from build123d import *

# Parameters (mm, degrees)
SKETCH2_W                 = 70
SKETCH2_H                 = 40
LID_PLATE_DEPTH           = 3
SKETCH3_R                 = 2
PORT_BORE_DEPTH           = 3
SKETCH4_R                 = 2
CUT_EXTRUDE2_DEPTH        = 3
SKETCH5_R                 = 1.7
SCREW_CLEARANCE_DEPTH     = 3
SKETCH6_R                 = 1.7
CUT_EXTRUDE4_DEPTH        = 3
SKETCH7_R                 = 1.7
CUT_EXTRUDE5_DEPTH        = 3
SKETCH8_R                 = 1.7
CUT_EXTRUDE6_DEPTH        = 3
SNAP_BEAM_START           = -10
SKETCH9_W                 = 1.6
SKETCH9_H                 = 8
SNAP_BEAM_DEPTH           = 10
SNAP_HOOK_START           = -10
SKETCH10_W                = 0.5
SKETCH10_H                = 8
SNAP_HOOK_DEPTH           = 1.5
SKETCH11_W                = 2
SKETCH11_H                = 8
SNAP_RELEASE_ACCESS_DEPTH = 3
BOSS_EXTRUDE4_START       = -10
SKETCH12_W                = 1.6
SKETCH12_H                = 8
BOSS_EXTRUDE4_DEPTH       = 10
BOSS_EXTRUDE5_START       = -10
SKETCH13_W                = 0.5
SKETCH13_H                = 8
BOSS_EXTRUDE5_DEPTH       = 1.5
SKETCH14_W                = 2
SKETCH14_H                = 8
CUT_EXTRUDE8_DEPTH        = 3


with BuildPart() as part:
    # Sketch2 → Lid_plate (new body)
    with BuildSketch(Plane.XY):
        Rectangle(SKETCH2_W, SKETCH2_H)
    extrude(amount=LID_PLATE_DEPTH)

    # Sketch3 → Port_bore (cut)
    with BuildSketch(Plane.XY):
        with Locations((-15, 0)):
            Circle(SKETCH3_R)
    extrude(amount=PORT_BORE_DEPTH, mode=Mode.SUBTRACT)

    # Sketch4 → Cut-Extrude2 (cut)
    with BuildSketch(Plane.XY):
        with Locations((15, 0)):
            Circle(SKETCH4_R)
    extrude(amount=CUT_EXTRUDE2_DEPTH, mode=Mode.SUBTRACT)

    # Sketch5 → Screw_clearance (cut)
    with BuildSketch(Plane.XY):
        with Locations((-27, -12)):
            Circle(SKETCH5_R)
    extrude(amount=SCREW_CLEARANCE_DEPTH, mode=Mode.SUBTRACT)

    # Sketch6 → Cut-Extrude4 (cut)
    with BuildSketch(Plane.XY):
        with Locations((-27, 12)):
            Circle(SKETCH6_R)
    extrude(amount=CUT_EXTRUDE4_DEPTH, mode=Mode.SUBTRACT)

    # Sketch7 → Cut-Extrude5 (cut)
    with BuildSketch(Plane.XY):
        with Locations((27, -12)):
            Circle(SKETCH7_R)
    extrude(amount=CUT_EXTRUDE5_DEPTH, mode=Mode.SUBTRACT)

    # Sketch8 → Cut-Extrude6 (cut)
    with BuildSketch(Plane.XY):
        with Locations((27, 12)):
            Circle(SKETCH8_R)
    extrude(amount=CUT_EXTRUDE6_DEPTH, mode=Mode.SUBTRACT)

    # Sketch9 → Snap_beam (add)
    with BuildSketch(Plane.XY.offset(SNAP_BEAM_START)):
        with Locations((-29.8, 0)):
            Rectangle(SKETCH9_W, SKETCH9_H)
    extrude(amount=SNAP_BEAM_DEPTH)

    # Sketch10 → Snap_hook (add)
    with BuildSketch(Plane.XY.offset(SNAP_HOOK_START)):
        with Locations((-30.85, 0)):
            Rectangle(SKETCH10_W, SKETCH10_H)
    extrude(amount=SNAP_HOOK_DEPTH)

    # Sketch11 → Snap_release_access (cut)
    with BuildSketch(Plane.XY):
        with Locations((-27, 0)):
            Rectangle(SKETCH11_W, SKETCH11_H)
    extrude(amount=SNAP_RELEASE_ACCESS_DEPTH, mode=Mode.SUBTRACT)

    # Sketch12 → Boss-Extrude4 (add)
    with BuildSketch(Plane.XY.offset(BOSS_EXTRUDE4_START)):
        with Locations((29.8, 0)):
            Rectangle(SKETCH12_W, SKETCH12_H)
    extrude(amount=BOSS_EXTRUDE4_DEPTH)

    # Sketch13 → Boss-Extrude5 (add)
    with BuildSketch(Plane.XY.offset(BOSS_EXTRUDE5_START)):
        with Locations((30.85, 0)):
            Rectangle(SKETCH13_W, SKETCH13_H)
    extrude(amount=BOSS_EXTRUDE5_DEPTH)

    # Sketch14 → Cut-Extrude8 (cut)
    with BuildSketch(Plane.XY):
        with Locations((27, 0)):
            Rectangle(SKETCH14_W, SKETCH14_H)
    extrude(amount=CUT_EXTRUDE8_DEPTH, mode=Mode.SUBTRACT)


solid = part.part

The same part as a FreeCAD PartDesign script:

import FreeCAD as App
import Part
import Sketcher
Q = App.Units.Quantity

doc = App.newDocument("Part")
body = doc.addObject("PartDesign::Body", "Body")

# Sketch on XY plane
sketch1 = body.newObject("Sketcher::SketchObject", "Sketch")
sketch1.AttachmentSupport = (doc.getObject("XY_Plane"), [""])
sketch1.MapMode = "FlatFace"
sketch1.addGeometry(Part.LineSegment(App.Vector(-35, 20, 0), App.Vector(-35, -20, 0)), False)
sketch1.addGeometry(Part.LineSegment(App.Vector(-35, -20, 0), App.Vector(35, -20, 0)), False)
sketch1.addGeometry(Part.LineSegment(App.Vector(35, -20, 0), App.Vector(35, 20, 0)), False)
sketch1.addGeometry(Part.LineSegment(App.Vector(35, 20, 0), App.Vector(-35, 20, 0)), False)
sketch1.addConstraint(Sketcher.Constraint("Coincident", 0, 2, 1, 1))
sketch1.addConstraint(Sketcher.Constraint("Coincident", 1, 2, 2, 1))
sketch1.addConstraint(Sketcher.Constraint("Coincident", 2, 2, 3, 1))
sketch1.addConstraint(Sketcher.Constraint("Coincident", 3, 2, 0, 1))
sketch1.addConstraint(Sketcher.Constraint("Vertical", 0))
sketch1.addConstraint(Sketcher.Constraint("Horizontal", 1))
sketch1.addConstraint(Sketcher.Constraint("Vertical", 2))
sketch1.addConstraint(Sketcher.Constraint("Horizontal", 3))
sketch1.addConstraint(Sketcher.Constraint("Symmetric", 0, 2, 2, 2, -1, 1))
sketch1.addConstraint(Sketcher.Constraint("DistanceX", 1, 1, 1, 2, Q("70 mm")))
sketch1.addConstraint(Sketcher.Constraint("DistanceY", 0, 2, 0, 1, Q("40 mm")))
pad1 = body.newObject("PartDesign::Pad", "Pad")
pad1.Profile = sketch1
pad1.Length = 3

# Sketch on XY plane
sketch2 = body.newObject("Sketcher::SketchObject", "Sketch001")
sketch2.AttachmentSupport = (doc.getObject("XY_Plane"), [""])
sketch2.MapMode = "FlatFace"
sketch2.addGeometry(Part.Circle(App.Vector(-15, 0, 0), App.Vector(0, 0, 1), 2), False)
sketch2.addConstraint(Sketcher.Constraint("PointOnObject", 0, 3, -1))
sketch2.addConstraint(Sketcher.Constraint("Diameter", 0, Q("4 mm")))
sketch2.addConstraint(Sketcher.Constraint("DistanceX", 0, 3, -1, 1, Q("15 mm")))
pocket1 = body.newObject("PartDesign::Pocket", "Pocket")
pocket1.Profile = sketch2
pocket1.Length = 3
pocket1.Reversed = True

# Sketch on XY plane
sketch3 = body.newObject("Sketcher::SketchObject", "Sketch002")
sketch3.AttachmentSupport = (doc.getObject("XY_Plane"), [""])
sketch3.MapMode = "FlatFace"
sketch3.addGeometry(Part.Circle(App.Vector(15, 0, 0), App.Vector(0, 0, 1), 2), False)
sketch3.addConstraint(Sketcher.Constraint("PointOnObject", 0, 3, -1))
sketch3.addConstraint(Sketcher.Constraint("Diameter", 0, Q("4 mm")))
sketch3.addConstraint(Sketcher.Constraint("DistanceX", -1, 1, 0, 3, Q("15 mm")))
pocket2 = body.newObject("PartDesign::Pocket", "Pocket001")
pocket2.Profile = sketch3
pocket2.Length = 3
pocket2.Reversed = True

# Sketch on XY plane
sketch4 = body.newObject("Sketcher::SketchObject", "Sketch003")
sketch4.AttachmentSupport = (doc.getObject("XY_Plane"), [""])
sketch4.MapMode = "FlatFace"
sketch4.addGeometry(Part.Circle(App.Vector(-27, -12, 0), App.Vector(0, 0, 1), 1.7), False)
sketch4.addConstraint(Sketcher.Constraint("Diameter", 0, Q("3.4 mm")))
sketch4.addConstraint(Sketcher.Constraint("DistanceX", 0, 3, -1, 1, Q("27 mm")))
sketch4.addConstraint(Sketcher.Constraint("DistanceY", 0, 3, -1, 1, Q("12 mm")))
pocket3 = body.newObject("PartDesign::Pocket", "Pocket002")
pocket3.Profile = sketch4
pocket3.Length = 3
pocket3.Reversed = True

# Sketch on XY plane
sketch5 = body.newObject("Sketcher::SketchObject", "Sketch004")
sketch5.AttachmentSupport = (doc.getObject("XY_Plane"), [""])
sketch5.MapMode = "FlatFace"
sketch5.addGeometry(Part.Circle(App.Vector(-27, 12, 0), App.Vector(0, 0, 1), 1.7), False)
sketch5.addConstraint(Sketcher.Constraint("Diameter", 0, Q("3.4 mm")))
sketch5.addConstraint(Sketcher.Constraint("DistanceX", 0, 3, -1, 1, Q("27 mm")))
sketch5.addConstraint(Sketcher.Constraint("DistanceY", -1, 1, 0, 3, Q("12 mm")))
pocket4 = body.newObject("PartDesign::Pocket", "Pocket003")
pocket4.Profile = sketch5
pocket4.Length = 3
pocket4.Reversed = True

# Sketch on XY plane
sketch6 = body.newObject("Sketcher::SketchObject", "Sketch005")
sketch6.AttachmentSupport = (doc.getObject("XY_Plane"), [""])
sketch6.MapMode = "FlatFace"
sketch6.addGeometry(Part.Circle(App.Vector(27, -12, 0), App.Vector(0, 0, 1), 1.7), False)
sketch6.addConstraint(Sketcher.Constraint("Diameter", 0, Q("3.4 mm")))
sketch6.addConstraint(Sketcher.Constraint("DistanceX", -1, 1, 0, 3, Q("27 mm")))
sketch6.addConstraint(Sketcher.Constraint("DistanceY", 0, 3, -1, 1, Q("12 mm")))
pocket5 = body.newObject("PartDesign::Pocket", "Pocket004")
pocket5.Profile = sketch6
pocket5.Length = 3
pocket5.Reversed = True

# Sketch on XY plane
sketch7 = body.newObject("Sketcher::SketchObject", "Sketch006")
sketch7.AttachmentSupport = (doc.getObject("XY_Plane"), [""])
sketch7.MapMode = "FlatFace"
sketch7.addGeometry(Part.Circle(App.Vector(27, 12, 0), App.Vector(0, 0, 1), 1.7), False)
sketch7.addConstraint(Sketcher.Constraint("Diameter", 0, Q("3.4 mm")))
sketch7.addConstraint(Sketcher.Constraint("DistanceX", -1, 1, 0, 3, Q("27 mm")))
sketch7.addConstraint(Sketcher.Constraint("DistanceY", -1, 1, 0, 3, Q("12 mm")))
pocket6 = body.newObject("PartDesign::Pocket", "Pocket005")
pocket6.Profile = sketch7
pocket6.Length = 3
pocket6.Reversed = True

# Sketch on XY plane
sketch8 = body.newObject("Sketcher::SketchObject", "Sketch007")
sketch8.AttachmentSupport = (doc.getObject("XY_Plane"), [""])
sketch8.MapMode = "FlatFace"
sketch8.AttachmentOffset = App.Placement(App.Vector(0, 0, -10), App.Rotation())
sketch8.addGeometry(Part.LineSegment(App.Vector(-30.6, 4, 0), App.Vector(-30.6, -4, 0)), False)
sketch8.addGeometry(Part.LineSegment(App.Vector(-30.6, -4, 0), App.Vector(-29, -4, 0)), False)
sketch8.addGeometry(Part.LineSegment(App.Vector(-29, -4, 0), App.Vector(-29, 4, 0)), False)
sketch8.addGeometry(Part.LineSegment(App.Vector(-29, 4, 0), App.Vector(-30.6, 4, 0)), False)
sketch8.addConstraint(Sketcher.Constraint("Coincident", 0, 2, 1, 1))
sketch8.addConstraint(Sketcher.Constraint("Coincident", 1, 2, 2, 1))
sketch8.addConstraint(Sketcher.Constraint("Coincident", 2, 2, 3, 1))
sketch8.addConstraint(Sketcher.Constraint("Coincident", 3, 2, 0, 1))
sketch8.addConstraint(Sketcher.Constraint("Vertical", 0))
sketch8.addConstraint(Sketcher.Constraint("Horizontal", 1))
sketch8.addConstraint(Sketcher.Constraint("Vertical", 2))
sketch8.addConstraint(Sketcher.Constraint("Horizontal", 3))
sketch8.addConstraint(Sketcher.Constraint("DistanceY", 0, 2, 0, 1, Q("8 mm")))
sketch8.addConstraint(Sketcher.Constraint("DistanceX", 1, 1, 1, 2, Q("1.6 mm")))
sketch8.addConstraint(Sketcher.Constraint("DistanceY", 0, 2, -1, 1, Q("4 mm")))
sketch8.addConstraint(Sketcher.Constraint("DistanceX", 1, 2, -1, 1, Q("29 mm")))
pad2 = body.newObject("PartDesign::Pad", "Pad001")
pad2.Profile = sketch8
pad2.Length = 10

# Sketch on XY plane
sketch9 = body.newObject("Sketcher::SketchObject", "Sketch008")
sketch9.AttachmentSupport = (doc.getObject("XY_Plane"), [""])
sketch9.MapMode = "FlatFace"
sketch9.AttachmentOffset = App.Placement(App.Vector(0, 0, -10), App.Rotation())
sketch9.addGeometry(Part.LineSegment(App.Vector(-31.1, 4, 0), App.Vector(-31.1, -4, 0)), False)
sketch9.addGeometry(Part.LineSegment(App.Vector(-31.1, -4, 0), App.Vector(-30.6, -4, 0)), False)
sketch9.addGeometry(Part.LineSegment(App.Vector(-30.6, -4, 0), App.Vector(-30.6, 4, 0)), False)
sketch9.addGeometry(Part.LineSegment(App.Vector(-30.6, 4, 0), App.Vector(-31.1, 4, 0)), False)
sketch9.addConstraint(Sketcher.Constraint("Coincident", 0, 2, 1, 1))
sketch9.addConstraint(Sketcher.Constraint("Coincident", 1, 2, 2, 1))
sketch9.addConstraint(Sketcher.Constraint("Coincident", 2, 2, 3, 1))
sketch9.addConstraint(Sketcher.Constraint("Coincident", 3, 2, 0, 1))
sketch9.addConstraint(Sketcher.Constraint("Vertical", 0))
sketch9.addConstraint(Sketcher.Constraint("Horizontal", 1))
sketch9.addConstraint(Sketcher.Constraint("Vertical", 2))
sketch9.addConstraint(Sketcher.Constraint("Horizontal", 3))
sketch9.addConstraint(Sketcher.Constraint("DistanceY", 0, 2, 0, 1, Q("8 mm")))
sketch9.addConstraint(Sketcher.Constraint("DistanceX", 1, 1, 1, 2, Q("0.5 mm")))
sketch9.addConstraint(Sketcher.Constraint("DistanceY", 0, 2, -1, 1, Q("4 mm")))
sketch9.addConstraint(Sketcher.Constraint("DistanceX", 0, 2, -1, 1, Q("31.1 mm")))
pad3 = body.newObject("PartDesign::Pad", "Pad002")
pad3.Profile = sketch9
pad3.Length = 1.5

# Sketch on XY plane
sketch10 = body.newObject("Sketcher::SketchObject", "Sketch009")
sketch10.AttachmentSupport = (doc.getObject("XY_Plane"), [""])
sketch10.MapMode = "FlatFace"
sketch10.addGeometry(Part.LineSegment(App.Vector(-28, 4, 0), App.Vector(-28, -4, 0)), False)
sketch10.addGeometry(Part.LineSegment(App.Vector(-28, -4, 0), App.Vector(-26, -4, 0)), False)
sketch10.addGeometry(Part.LineSegment(App.Vector(-26, -4, 0), App.Vector(-26, 4, 0)), False)
sketch10.addGeometry(Part.LineSegment(App.Vector(-26, 4, 0), App.Vector(-28, 4, 0)), False)
sketch10.addConstraint(Sketcher.Constraint("Coincident", 0, 2, 1, 1))
sketch10.addConstraint(Sketcher.Constraint("Coincident", 1, 2, 2, 1))
sketch10.addConstraint(Sketcher.Constraint("Coincident", 2, 2, 3, 1))
sketch10.addConstraint(Sketcher.Constraint("Coincident", 3, 2, 0, 1))
sketch10.addConstraint(Sketcher.Constraint("Vertical", 0))
sketch10.addConstraint(Sketcher.Constraint("Horizontal", 1))
sketch10.addConstraint(Sketcher.Constraint("Vertical", 2))
sketch10.addConstraint(Sketcher.Constraint("Horizontal", 3))
sketch10.addConstraint(Sketcher.Constraint("DistanceX", 1, 1, 1, 2, Q("2 mm")))
sketch10.addConstraint(Sketcher.Constraint("DistanceY", 0, 2, 0, 1, Q("8 mm")))
sketch10.addConstraint(Sketcher.Constraint("DistanceX", 0, 2, -1, 1, Q("28 mm")))
sketch10.addConstraint(Sketcher.Constraint("DistanceY", 0, 2, -1, 1, Q("4 mm")))
pocket7 = body.newObject("PartDesign::Pocket", "Pocket006")
pocket7.Profile = sketch10
pocket7.Length = 3
pocket7.Reversed = True

# Sketch on XY plane
sketch11 = body.newObject("Sketcher::SketchObject", "Sketch010")
sketch11.AttachmentSupport = (doc.getObject("XY_Plane"), [""])
sketch11.MapMode = "FlatFace"
sketch11.AttachmentOffset = App.Placement(App.Vector(0, 0, -10), App.Rotation())
sketch11.addGeometry(Part.LineSegment(App.Vector(29, 4, 0), App.Vector(29, -4, 0)), False)
sketch11.addGeometry(Part.LineSegment(App.Vector(29, -4, 0), App.Vector(30.6, -4, 0)), False)
sketch11.addGeometry(Part.LineSegment(App.Vector(30.6, -4, 0), App.Vector(30.6, 4, 0)), False)
sketch11.addGeometry(Part.LineSegment(App.Vector(30.6, 4, 0), App.Vector(29, 4, 0)), False)
sketch11.addConstraint(Sketcher.Constraint("Coincident", 0, 2, 1, 1))
sketch11.addConstraint(Sketcher.Constraint("Coincident", 1, 2, 2, 1))
sketch11.addConstraint(Sketcher.Constraint("Coincident", 2, 2, 3, 1))
sketch11.addConstraint(Sketcher.Constraint("Coincident", 3, 2, 0, 1))
sketch11.addConstraint(Sketcher.Constraint("Vertical", 0))
sketch11.addConstraint(Sketcher.Constraint("Horizontal", 1))
sketch11.addConstraint(Sketcher.Constraint("Vertical", 2))
sketch11.addConstraint(Sketcher.Constraint("Horizontal", 3))
sketch11.addConstraint(Sketcher.Constraint("DistanceY", 0, 2, 0, 1, Q("8 mm")))
sketch11.addConstraint(Sketcher.Constraint("DistanceX", 1, 1, 1, 2, Q("1.6 mm")))
sketch11.addConstraint(Sketcher.Constraint("DistanceX", -1, 1, 0, 2, Q("29 mm")))
sketch11.addConstraint(Sketcher.Constraint("DistanceY", 0, 2, -1, 1, Q("4 mm")))
pad4 = body.newObject("PartDesign::Pad", "Pad003")
pad4.Profile = sketch11
pad4.Length = 10

# Sketch on XY plane
sketch12 = body.newObject("Sketcher::SketchObject", "Sketch011")
sketch12.AttachmentSupport = (doc.getObject("XY_Plane"), [""])
sketch12.MapMode = "FlatFace"
sketch12.AttachmentOffset = App.Placement(App.Vector(0, 0, -10), App.Rotation())
sketch12.addGeometry(Part.LineSegment(App.Vector(30.6, 4, 0), App.Vector(30.6, -4, 0)), False)
sketch12.addGeometry(Part.LineSegment(App.Vector(30.6, -4, 0), App.Vector(31.1, -4, 0)), False)
sketch12.addGeometry(Part.LineSegment(App.Vector(31.1, -4, 0), App.Vector(31.1, 4, 0)), False)
sketch12.addGeometry(Part.LineSegment(App.Vector(31.1, 4, 0), App.Vector(30.6, 4, 0)), False)
sketch12.addConstraint(Sketcher.Constraint("Coincident", 0, 2, 1, 1))
sketch12.addConstraint(Sketcher.Constraint("Coincident", 1, 2, 2, 1))
sketch12.addConstraint(Sketcher.Constraint("Coincident", 2, 2, 3, 1))
sketch12.addConstraint(Sketcher.Constraint("Coincident", 3, 2, 0, 1))
sketch12.addConstraint(Sketcher.Constraint("Vertical", 0))
sketch12.addConstraint(Sketcher.Constraint("Horizontal", 1))
sketch12.addConstraint(Sketcher.Constraint("Vertical", 2))
sketch12.addConstraint(Sketcher.Constraint("Horizontal", 3))
sketch12.addConstraint(Sketcher.Constraint("DistanceY", 0, 2, 0, 1, Q("8 mm")))
sketch12.addConstraint(Sketcher.Constraint("DistanceX", 1, 1, 1, 2, Q("0.5 mm")))
sketch12.addConstraint(Sketcher.Constraint("DistanceY", 0, 2, -1, 1, Q("4 mm")))
sketch12.addConstraint(Sketcher.Constraint("DistanceX", -1, 1, 0, 2, Q("30.6 mm")))
pad5 = body.newObject("PartDesign::Pad", "Pad004")
pad5.Profile = sketch12
pad5.Length = 1.5

# Sketch on XY plane
sketch13 = body.newObject("Sketcher::SketchObject", "Sketch012")
sketch13.AttachmentSupport = (doc.getObject("XY_Plane"), [""])
sketch13.MapMode = "FlatFace"
sketch13.addGeometry(Part.LineSegment(App.Vector(26, 4, 0), App.Vector(26, -4, 0)), False)
sketch13.addGeometry(Part.LineSegment(App.Vector(26, -4, 0), App.Vector(28, -4, 0)), False)
sketch13.addGeometry(Part.LineSegment(App.Vector(28, -4, 0), App.Vector(28, 4, 0)), False)
sketch13.addGeometry(Part.LineSegment(App.Vector(28, 4, 0), App.Vector(26, 4, 0)), False)
sketch13.addConstraint(Sketcher.Constraint("Coincident", 0, 2, 1, 1))
sketch13.addConstraint(Sketcher.Constraint("Coincident", 1, 2, 2, 1))
sketch13.addConstraint(Sketcher.Constraint("Coincident", 2, 2, 3, 1))
sketch13.addConstraint(Sketcher.Constraint("Coincident", 3, 2, 0, 1))
sketch13.addConstraint(Sketcher.Constraint("Vertical", 0))
sketch13.addConstraint(Sketcher.Constraint("Horizontal", 1))
sketch13.addConstraint(Sketcher.Constraint("Vertical", 2))
sketch13.addConstraint(Sketcher.Constraint("Horizontal", 3))
sketch13.addConstraint(Sketcher.Constraint("DistanceX", 1, 1, 1, 2, Q("2 mm")))
sketch13.addConstraint(Sketcher.Constraint("DistanceY", 0, 2, 0, 1, Q("8 mm")))
sketch13.addConstraint(Sketcher.Constraint("DistanceX", -1, 1, 0, 2, Q("26 mm")))
sketch13.addConstraint(Sketcher.Constraint("DistanceY", 0, 2, -1, 1, Q("4 mm")))
pocket8 = body.newObject("PartDesign::Pocket", "Pocket007")
pocket8.Profile = sketch13
pocket8.Length = 3
pocket8.Reversed = True

doc.recompute()
